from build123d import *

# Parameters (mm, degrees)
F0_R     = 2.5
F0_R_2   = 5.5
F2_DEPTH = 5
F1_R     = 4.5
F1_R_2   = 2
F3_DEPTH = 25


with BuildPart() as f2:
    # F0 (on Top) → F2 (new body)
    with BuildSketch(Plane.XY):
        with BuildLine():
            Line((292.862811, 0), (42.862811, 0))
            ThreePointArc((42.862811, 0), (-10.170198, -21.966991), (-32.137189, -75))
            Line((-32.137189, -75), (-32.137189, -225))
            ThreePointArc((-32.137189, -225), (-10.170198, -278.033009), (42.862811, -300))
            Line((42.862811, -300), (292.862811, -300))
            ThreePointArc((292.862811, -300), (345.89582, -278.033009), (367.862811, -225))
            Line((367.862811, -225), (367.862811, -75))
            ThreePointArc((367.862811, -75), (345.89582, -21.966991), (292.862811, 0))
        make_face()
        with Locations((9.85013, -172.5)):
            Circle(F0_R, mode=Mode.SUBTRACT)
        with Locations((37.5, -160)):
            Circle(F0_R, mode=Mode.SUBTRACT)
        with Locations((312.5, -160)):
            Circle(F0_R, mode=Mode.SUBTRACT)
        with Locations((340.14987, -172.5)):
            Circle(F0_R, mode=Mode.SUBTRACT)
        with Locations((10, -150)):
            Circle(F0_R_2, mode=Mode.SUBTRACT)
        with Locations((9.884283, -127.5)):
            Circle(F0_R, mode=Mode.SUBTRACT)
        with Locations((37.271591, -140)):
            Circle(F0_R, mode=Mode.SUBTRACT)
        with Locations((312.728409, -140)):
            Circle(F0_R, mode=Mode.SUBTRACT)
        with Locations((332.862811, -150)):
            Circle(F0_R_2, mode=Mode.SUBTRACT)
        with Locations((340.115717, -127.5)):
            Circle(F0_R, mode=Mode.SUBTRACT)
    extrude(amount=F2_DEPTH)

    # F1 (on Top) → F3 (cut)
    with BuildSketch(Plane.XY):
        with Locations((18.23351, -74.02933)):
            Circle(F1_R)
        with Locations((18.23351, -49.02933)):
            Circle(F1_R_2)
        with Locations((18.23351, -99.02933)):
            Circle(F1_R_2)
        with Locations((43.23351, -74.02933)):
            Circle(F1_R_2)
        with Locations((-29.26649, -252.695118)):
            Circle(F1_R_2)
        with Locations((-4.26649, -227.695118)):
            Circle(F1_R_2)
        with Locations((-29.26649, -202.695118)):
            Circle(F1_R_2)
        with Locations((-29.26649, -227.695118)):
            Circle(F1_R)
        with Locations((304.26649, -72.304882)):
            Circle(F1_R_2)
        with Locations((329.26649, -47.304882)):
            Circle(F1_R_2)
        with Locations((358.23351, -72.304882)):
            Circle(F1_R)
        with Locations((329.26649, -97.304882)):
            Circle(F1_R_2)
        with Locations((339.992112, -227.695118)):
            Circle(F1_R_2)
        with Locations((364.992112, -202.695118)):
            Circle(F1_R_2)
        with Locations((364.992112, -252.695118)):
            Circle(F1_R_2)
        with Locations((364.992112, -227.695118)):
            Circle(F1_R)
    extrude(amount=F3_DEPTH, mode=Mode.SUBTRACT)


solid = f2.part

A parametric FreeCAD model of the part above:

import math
import FreeCAD as App
import Part
import Sketcher
from FreeCAD import Vector

doc = App.newDocument("Part")
params = doc.addObject("Spreadsheet::Sheet", "Params")
for row, (alias, value) in enumerate([
    ("sketch1_diameter", "5 mm"),
    ("sketch1_diameter2", "11 mm"),
    ("sketch1_radius", "74.999999 mm"),
    ("sketch1_width", "250 mm"),
    ("sketch1_height", "150 mm"),
    ("pad1_length", "5 mm"),
    ("sketch2_diameter", "9 mm"),
    ("sketch2_diameter2", "4 mm"),
    ("pocket1_length", "25 mm"),
], start=1):
    params.set(f"A{row}", alias)
    params.set(f"B{row}", "=" + value)
    params.setAlias(f"B{row}", alias)

body = doc.addObject("PartDesign::Body", "Body")

# Sketch on XY plane
sketch1 = body.newObject("Sketcher::SketchObject", "Sketch")
sketch1.AttachmentSupport = (doc.getObject("XY_Plane"), [""])
sketch1.MapMode = "FlatFace"
sketch1.addGeometry([
    Part.LineSegment(Vector(292.9, 0, 0), Vector(42.9, 0, 0)),  # 0
    Part.ArcOfCircle(Part.Circle(Vector(42.9, -75, 0), Vector(0, 0, 1), 75), math.radians(90), math.radians(180)),  # 1
    Part.LineSegment(Vector(-32.1, -75, 0), Vector(-32.1, -225, 0)),  # 2
    Part.ArcOfCircle(Part.Circle(Vector(42.9, -225, 0), Vector(0, 0, 1), 75), math.radians(180), math.radians(270)),  # 3
    Part.LineSegment(Vector(42.9, -300, 0), Vector(292.9, -300, 0)),  # 4
    Part.ArcOfCircle(Part.Circle(Vector(292.9, -225, 0), Vector(0, 0, 1), 75), math.radians(-90), math.radians(0)),  # 5
    Part.LineSegment(Vector(367.9, -225, 0), Vector(367.9, -75, 0)),  # 6
    Part.ArcOfCircle(Part.Circle(Vector(292.9, -75, 0), Vector(0, 0, 1), 75), math.radians(0), math.radians(90)),  # 7
    Part.Circle(Vector(9.9, -172.5, 0), Vector(0, 0, 1), 2.5),  # 8
    Part.Circle(Vector(37.5, -160, 0), Vector(0, 0, 1), 2.5),  # 9
    Part.Circle(Vector(340.1, -172.5, 0), Vector(0, 0, 1), 2.5),  # 10
    Part.Circle(Vector(312.5, -160, 0), Vector(0, 0, 1), 2.5),  # 11
    Part.Circle(Vector(10, -150, 0), Vector(0, 0, 1), 5.5),  # 12
    Part.Circle(Vector(37.3, -140, 0), Vector(0, 0, 1), 2.5),  # 13
    Part.Circle(Vector(9.9, -127.5, 0), Vector(0, 0, 1), 2.5),  # 14
    Part.Circle(Vector(332.9, -150, 0), Vector(0, 0, 1), 5.5),  # 15
    Part.Circle(Vector(312.7, -140, 0), Vector(0, 0, 1), 2.5),  # 16
    Part.Circle(Vector(340.1, -127.5, 0), Vector(0, 0, 1), 2.5),  # 17
], False)
sketch1.addConstraint([
    Sketcher.Constraint("Tangent", 0, 2, 1, 1),
    Sketcher.Constraint("Tangent", 1, 2, 2, 1),
    Sketcher.Constraint("Tangent", 2, 2, 3, 1),
    Sketcher.Constraint("Tangent", 3, 2, 4, 1),
    Sketcher.Constraint("Tangent", 4, 2, 5, 1),
    Sketcher.Constraint("Tangent", 5, 2, 6, 1),
    Sketcher.Constraint("Tangent", 6, 2, 7, 1),
    Sketcher.Constraint("Tangent", 7, 2, 0, 1),
    Sketcher.Constraint("Horizontal", 0),
    Sketcher.Constraint("Vertical", 2),
    Sketcher.Constraint("Horizontal", 4),
    Sketcher.Constraint("Vertical", 6),
    Sketcher.Constraint("Equal", 1, 3),
    Sketcher.Constraint("Equal", 3, 5),
    Sketcher.Constraint("Equal", 5, 7),
    Sketcher.Constraint("Equal", 8, 9),
    Sketcher.Constraint("Equal", 9, 10),
    Sketcher.Constraint("Equal", 10, 11),
    Sketcher.Constraint("Equal", 11, 13),
    Sketcher.Constraint("Equal", 13, 14),
    Sketcher.Constraint("Equal", 12, 15),
    Sketcher.Constraint("Equal", 14, 16),
    Sketcher.Constraint("Equal", 16, 17),
    Sketcher.Constraint("PointOnObject", 0, 2, -1),
    Sketcher.Constraint("Horizontal", 8, 3, 10, 3),
    Sketcher.Constraint("Horizontal", 9, 3, 11, 3),
    Sketcher.Constraint("Horizontal", 12, 3, 15, 3),
    Sketcher.Constraint("Horizontal", 13, 3, 16, 3),
    Sketcher.Constraint("Horizontal", 14, 3, 17, 3),
    Sketcher.Constraint("Diameter", 8, 5.0),
    Sketcher.Constraint("Diameter", 12, 11.0),
    Sketcher.Constraint("Radius", 1, 74.999999),
    Sketcher.Constraint("DistanceX", 0, 2, 0, 1, 250.0),
    Sketcher.Constraint("DistanceY", 2, 2, 2, 1, 150.0),
    Sketcher.Constraint("DistanceY", 9, 3, -1, 1, 160.0),
    Sketcher.Constraint("DistanceX", -1, 1, 12, 3, 10.0),
    Sketcher.Constraint("DistanceY", 12, 3, -1, 1, 150.0),
    Sketcher.Constraint("DistanceY", 13, 3, -1, 1, 140.0),
    Sketcher.Constraint("DistanceX", 9, 3, 11, 3, 275.0),
    Sketcher.Constraint("DistanceY", 8, 3, 14, 3, 45.0),
    Sketcher.Constraint("DistanceX", 5, 3, 15, 3, 39.999999),
    Sketcher.Constraint("DistanceY", 8, 3, -1, 1, 172.5),
    Sketcher.Constraint("DistanceX", -1, 1, 9, 3, 37.5),
    Sketcher.Constraint("DistanceX", -1, 1, 1, 3, 42.86281),
    Sketcher.Constraint("DistanceX", -1, 1, 8, 3, 9.85013),
    Sketcher.Constraint("DistanceX", -1, 1, 10, 3, 340.14987),
    Sketcher.Constraint("DistanceX", -1, 1, 13, 3, 37.271591),
    Sketcher.Constraint("DistanceX", -1, 1, 16, 3, 312.728409),
    Sketcher.Constraint("DistanceX", 14, 3, 13, 3, 27.387308),
    Sketcher.Constraint("DistanceX", 16, 3, 17, 3, 27.387308),
])
sketch1.setExpression("Constraints[29]", "Params.sketch1_diameter")
sketch1.setExpression("Constraints[30]", "Params.sketch1_diameter2")
sketch1.setExpression("Constraints[31]", "Params.sketch1_radius")
sketch1.setExpression("Constraints[32]", "Params.sketch1_width")
sketch1.setExpression("Constraints[33]", "Params.sketch1_height")
pad1 = body.newObject("PartDesign::Pad", "Pad")
pad1.Profile = sketch1
pad1.setExpression("Length", "Params.pad1_length")

# Sketch on XY plane
sketch2 = body.newObject("Sketcher::SketchObject", "Sketch001")
sketch2.AttachmentSupport = (doc.getObject("XY_Plane"), [""])
sketch2.MapMode = "FlatFace"
sketch2.addGeometry([
    Part.Circle(Vector(18.2, -74, 0), Vector(0, 0, 1), 4.5),  # 0
    Part.Circle(Vector(18.2, -49, 0), Vector(0, 0, 1), 2),  # 1
    Part.Circle(Vector(18.2, -99, 0), Vector(0, 0, 1), 2),  # 2
    Part.Circle(Vector(43.2, -74, 0), Vector(0, 0, 1), 2),  # 3
    Part.Circle(Vector(-29.3, -252.7, 0), Vector(0, 0, 1), 2),  # 4
    Part.Circle(Vector(-4.3, -227.7, 0), Vector(0, 0, 1), 2),  # 5
    Part.Circle(Vector(-29.3, -202.7, 0), Vector(0, 0, 1), 2),  # 6
    Part.Circle(Vector(-29.3, -227.7, 0), Vector(0, 0, 1), 4.5),  # 7
    Part.Circle(Vector(304.3, -72.3, 0), Vector(0, 0, 1), 2),  # 8
    Part.Circle(Vector(329.3, -47.3, 0), Vector(0, 0, 1), 2),  # 9
    Part.Circle(Vector(358.2, -72.3, 0), Vector(0, 0, 1), 4.5),  # 10
    Part.Circle(Vector(329.3, -97.3, 0), Vector(0, 0, 1), 2),  # 11
    Part.Circle(Vector(340, -227.7, 0), Vector(0, 0, 1), 2),  # 12
    Part.Circle(Vector(365, -202.7, 0), Vector(0, 0, 1), 2),  # 13
    Part.Circle(Vector(365, -252.7, 0), Vector(0, 0, 1), 2),  # 14
    Part.Circle(Vector(365, -227.7, 0), Vector(0, 0, 1), 4.5),  # 15
], False)
sketch2.addConstraint([
    Sketcher.Constraint("Equal", 1, 2),
    Sketcher.Constraint("Equal", 2, 3),
    Sketcher.Constraint("Equal", 3, 4),
    Sketcher.Constraint("Equal", 4, 5),
    Sketcher.Constraint("Equal", 5, 6),
    Sketcher.Constraint("Equal", 0, 7),
    Sketcher.Constraint("Equal", 6, 8),
    Sketcher.Constraint("Equal", 8, 9),
    Sketcher.Constraint("Equal", 7, 10),
    Sketcher.Constraint("Equal", 9, 11),
    Sketcher.Constraint("Equal", 11, 12),
    Sketcher.Constraint("Equal", 12, 13),
    Sketcher.Constraint("Equal", 13, 14),
    Sketcher.Constraint("Equal", 10, 15),
    Sketcher.Constraint("Horizontal", 0, 3, 3, 3),
    Sketcher.Constraint("Horizontal", 5, 3, 7, 3),
    Sketcher.Constraint("Horizontal", 8, 3, 10, 3),
    Sketcher.Constraint("Horizontal", 7, 3, 12, 3),
    Sketcher.Constraint("Horizontal", 6, 3, 13, 3),
    Sketcher.Constraint("Horizontal", 4, 3, 14, 3),
    Sketcher.Constraint("Horizontal", 12, 3, 15, 3),
    Sketcher.Constraint("Vertical", 0, 3, 1, 3),
    Sketcher.Constraint("Vertical", 1, 3, 2, 3),
    Sketcher.Constraint("Vertical", 4, 3, 6, 3),
    Sketcher.Constraint("Vertical", 6, 3, 7, 3),
    Sketcher.Constraint("Vertical", 9, 3, 11, 3),
    Sketcher.Constraint("Vertical", 13, 3, 14, 3),
    Sketcher.Constraint("Vertical", 14, 3, 15, 3),
    Sketcher.Constraint("Diameter", 0, 9.0),
    Sketcher.Constraint("Diameter", 1, 4.0),
    Sketcher.Constraint("DistanceY", 0, 3, 1, 3, 25.0),
    Sketcher.Constraint("DistanceY", 2, 3, 0, 3, 25.0),
    Sketcher.Constraint("DistanceX", 0, 3, 3, 3, 25.0),
    Sketcher.Constraint("DistanceX", 4, 3, 5, 3, 25.0),
    Sketcher.Constraint("DistanceY", 4, 3, 5, 3, 25.0),
    Sketcher.Constraint("DistanceY", 5, 3, 6, 3, 25.0),
    Sketcher.Constraint("DistanceX", 8, 3, 9, 3, 25.0),
    Sketcher.Constraint("DistanceY", 8, 3, 9, 3, 25.0),
    Sketcher.Constraint("DistanceX", 3, 3, 10, 3, 315.0),
    Sketcher.Constraint("DistanceY", 11, 3, 8, 3, 25.0),
    Sketcher.Constraint("DistanceX", 12, 3, 13, 3, 25.0),
    Sketcher.Constraint("DistanceX", 4, 3, 2, 3, 47.5),
    Sketcher.Constraint("DistanceX", 12, 3, 10, 3, 18.241398),
    Sketcher.Constraint("DistanceX", -1, 1, 0, 3, 18.23351),
    Sketcher.Constraint("DistanceY", 0, 3, -1, 1, 74.02933),
    Sketcher.Constraint("DistanceY", 4, 3, -1, 1, 252.695118),
    Sketcher.Constraint("DistanceX", -1, 1, 8, 3, 304.26649),
    Sketcher.Constraint("DistanceY", 3, 3, 9, 3, 26.724448),
])
sketch2.setExpression("Constraints[28]", "Params.sketch2_diameter")
sketch2.setExpression("Constraints[29]", "Params.sketch2_diameter2")
pocket1 = body.newObject("PartDesign::Pocket", "Pocket")
pocket1.Profile = sketch2
pocket1.setExpression("Length", "Params.pocket1_length")
pocket1.Reversed = True

doc.recompute()
